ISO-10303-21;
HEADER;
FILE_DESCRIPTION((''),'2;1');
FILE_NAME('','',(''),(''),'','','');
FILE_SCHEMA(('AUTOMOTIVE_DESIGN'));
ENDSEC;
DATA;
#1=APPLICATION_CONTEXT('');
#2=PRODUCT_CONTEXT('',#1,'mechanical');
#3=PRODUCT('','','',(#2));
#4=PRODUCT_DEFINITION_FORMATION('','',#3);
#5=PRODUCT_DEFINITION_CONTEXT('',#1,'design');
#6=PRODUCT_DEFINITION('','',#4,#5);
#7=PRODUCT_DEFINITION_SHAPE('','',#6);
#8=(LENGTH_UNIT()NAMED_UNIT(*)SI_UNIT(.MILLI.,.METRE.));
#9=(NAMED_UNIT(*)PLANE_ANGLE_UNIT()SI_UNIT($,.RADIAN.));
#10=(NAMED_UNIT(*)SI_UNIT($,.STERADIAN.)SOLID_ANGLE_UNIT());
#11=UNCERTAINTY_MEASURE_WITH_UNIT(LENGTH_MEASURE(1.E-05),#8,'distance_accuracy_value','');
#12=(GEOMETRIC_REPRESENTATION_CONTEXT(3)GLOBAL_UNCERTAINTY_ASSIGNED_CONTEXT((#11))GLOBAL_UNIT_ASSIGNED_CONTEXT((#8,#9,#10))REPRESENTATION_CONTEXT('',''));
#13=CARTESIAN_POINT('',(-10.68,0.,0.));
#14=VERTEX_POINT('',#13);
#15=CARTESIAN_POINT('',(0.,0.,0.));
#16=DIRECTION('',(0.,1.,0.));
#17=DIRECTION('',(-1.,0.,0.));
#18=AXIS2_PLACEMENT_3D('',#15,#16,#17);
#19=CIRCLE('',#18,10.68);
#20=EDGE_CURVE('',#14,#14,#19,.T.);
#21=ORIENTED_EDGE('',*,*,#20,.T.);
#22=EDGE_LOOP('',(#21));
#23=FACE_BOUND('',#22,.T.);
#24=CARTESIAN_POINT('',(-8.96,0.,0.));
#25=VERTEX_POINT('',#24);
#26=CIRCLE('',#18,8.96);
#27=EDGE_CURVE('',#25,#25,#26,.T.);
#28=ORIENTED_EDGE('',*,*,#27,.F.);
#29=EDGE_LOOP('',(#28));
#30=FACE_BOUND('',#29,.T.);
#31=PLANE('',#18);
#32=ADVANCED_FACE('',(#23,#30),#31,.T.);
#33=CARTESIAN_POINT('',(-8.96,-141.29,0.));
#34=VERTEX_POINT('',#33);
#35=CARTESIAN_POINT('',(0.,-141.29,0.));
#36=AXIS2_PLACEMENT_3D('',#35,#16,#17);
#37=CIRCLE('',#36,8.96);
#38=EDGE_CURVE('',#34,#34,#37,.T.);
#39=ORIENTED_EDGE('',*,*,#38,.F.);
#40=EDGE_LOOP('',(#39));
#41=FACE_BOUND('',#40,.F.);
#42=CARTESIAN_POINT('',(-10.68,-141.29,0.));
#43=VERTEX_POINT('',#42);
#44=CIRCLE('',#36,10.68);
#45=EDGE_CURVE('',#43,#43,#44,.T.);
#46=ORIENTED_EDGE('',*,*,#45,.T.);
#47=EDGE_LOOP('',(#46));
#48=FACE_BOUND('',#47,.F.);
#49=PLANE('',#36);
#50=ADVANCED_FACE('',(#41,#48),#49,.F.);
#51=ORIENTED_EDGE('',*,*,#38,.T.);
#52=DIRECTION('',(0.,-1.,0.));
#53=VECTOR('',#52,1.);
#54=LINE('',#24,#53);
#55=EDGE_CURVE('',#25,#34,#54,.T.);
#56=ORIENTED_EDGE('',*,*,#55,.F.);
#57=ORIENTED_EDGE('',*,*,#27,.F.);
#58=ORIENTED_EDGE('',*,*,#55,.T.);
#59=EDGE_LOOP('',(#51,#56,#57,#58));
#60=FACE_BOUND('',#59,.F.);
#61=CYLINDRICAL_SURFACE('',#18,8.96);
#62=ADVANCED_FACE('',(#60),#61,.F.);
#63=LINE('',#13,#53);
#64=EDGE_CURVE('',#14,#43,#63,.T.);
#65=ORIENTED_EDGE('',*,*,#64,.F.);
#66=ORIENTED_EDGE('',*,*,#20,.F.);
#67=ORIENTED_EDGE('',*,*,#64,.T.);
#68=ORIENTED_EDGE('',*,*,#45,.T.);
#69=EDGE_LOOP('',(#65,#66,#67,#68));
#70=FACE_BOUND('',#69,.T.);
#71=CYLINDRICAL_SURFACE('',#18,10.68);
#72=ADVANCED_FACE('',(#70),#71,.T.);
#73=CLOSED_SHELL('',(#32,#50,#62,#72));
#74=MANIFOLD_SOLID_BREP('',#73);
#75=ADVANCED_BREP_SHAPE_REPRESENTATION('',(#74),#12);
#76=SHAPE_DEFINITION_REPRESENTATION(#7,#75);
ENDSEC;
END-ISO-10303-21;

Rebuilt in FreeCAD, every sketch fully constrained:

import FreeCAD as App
import Part
import Sketcher
Q = App.Units.Quantity

doc = App.newDocument("Part")
body = doc.addObject("PartDesign::Body", "Body")

# Sketch on XZ plane
sketch1 = body.newObject("Sketcher::SketchObject", "Sketch")
sketch1.AttachmentSupport = (doc.getObject("XZ_Plane"), [""])
sketch1.MapMode = "FlatFace"
sketch1.addGeometry([
    Part.Circle(App.Vector(0, 0, 0), App.Vector(0, 0, 1), 10.68),
    Part.Circle(App.Vector(0, 0, 0), App.Vector(0, 0, 1), 8.96),
], False)
sketch1.addConstraint([
    Sketcher.Constraint("Coincident", 0, 3, -1, 1),
    Sketcher.Constraint("Coincident", 1, 3, -1, 1),
    Sketcher.Constraint("Diameter", 0, Q("21.36 mm")),
    Sketcher.Constraint("Diameter", 1, Q("17.92 mm")),
])
pad1 = body.newObject("PartDesign::Pad", "Pad")
pad1.Profile = sketch1
pad1.Length = 141.29

doc.recompute()
